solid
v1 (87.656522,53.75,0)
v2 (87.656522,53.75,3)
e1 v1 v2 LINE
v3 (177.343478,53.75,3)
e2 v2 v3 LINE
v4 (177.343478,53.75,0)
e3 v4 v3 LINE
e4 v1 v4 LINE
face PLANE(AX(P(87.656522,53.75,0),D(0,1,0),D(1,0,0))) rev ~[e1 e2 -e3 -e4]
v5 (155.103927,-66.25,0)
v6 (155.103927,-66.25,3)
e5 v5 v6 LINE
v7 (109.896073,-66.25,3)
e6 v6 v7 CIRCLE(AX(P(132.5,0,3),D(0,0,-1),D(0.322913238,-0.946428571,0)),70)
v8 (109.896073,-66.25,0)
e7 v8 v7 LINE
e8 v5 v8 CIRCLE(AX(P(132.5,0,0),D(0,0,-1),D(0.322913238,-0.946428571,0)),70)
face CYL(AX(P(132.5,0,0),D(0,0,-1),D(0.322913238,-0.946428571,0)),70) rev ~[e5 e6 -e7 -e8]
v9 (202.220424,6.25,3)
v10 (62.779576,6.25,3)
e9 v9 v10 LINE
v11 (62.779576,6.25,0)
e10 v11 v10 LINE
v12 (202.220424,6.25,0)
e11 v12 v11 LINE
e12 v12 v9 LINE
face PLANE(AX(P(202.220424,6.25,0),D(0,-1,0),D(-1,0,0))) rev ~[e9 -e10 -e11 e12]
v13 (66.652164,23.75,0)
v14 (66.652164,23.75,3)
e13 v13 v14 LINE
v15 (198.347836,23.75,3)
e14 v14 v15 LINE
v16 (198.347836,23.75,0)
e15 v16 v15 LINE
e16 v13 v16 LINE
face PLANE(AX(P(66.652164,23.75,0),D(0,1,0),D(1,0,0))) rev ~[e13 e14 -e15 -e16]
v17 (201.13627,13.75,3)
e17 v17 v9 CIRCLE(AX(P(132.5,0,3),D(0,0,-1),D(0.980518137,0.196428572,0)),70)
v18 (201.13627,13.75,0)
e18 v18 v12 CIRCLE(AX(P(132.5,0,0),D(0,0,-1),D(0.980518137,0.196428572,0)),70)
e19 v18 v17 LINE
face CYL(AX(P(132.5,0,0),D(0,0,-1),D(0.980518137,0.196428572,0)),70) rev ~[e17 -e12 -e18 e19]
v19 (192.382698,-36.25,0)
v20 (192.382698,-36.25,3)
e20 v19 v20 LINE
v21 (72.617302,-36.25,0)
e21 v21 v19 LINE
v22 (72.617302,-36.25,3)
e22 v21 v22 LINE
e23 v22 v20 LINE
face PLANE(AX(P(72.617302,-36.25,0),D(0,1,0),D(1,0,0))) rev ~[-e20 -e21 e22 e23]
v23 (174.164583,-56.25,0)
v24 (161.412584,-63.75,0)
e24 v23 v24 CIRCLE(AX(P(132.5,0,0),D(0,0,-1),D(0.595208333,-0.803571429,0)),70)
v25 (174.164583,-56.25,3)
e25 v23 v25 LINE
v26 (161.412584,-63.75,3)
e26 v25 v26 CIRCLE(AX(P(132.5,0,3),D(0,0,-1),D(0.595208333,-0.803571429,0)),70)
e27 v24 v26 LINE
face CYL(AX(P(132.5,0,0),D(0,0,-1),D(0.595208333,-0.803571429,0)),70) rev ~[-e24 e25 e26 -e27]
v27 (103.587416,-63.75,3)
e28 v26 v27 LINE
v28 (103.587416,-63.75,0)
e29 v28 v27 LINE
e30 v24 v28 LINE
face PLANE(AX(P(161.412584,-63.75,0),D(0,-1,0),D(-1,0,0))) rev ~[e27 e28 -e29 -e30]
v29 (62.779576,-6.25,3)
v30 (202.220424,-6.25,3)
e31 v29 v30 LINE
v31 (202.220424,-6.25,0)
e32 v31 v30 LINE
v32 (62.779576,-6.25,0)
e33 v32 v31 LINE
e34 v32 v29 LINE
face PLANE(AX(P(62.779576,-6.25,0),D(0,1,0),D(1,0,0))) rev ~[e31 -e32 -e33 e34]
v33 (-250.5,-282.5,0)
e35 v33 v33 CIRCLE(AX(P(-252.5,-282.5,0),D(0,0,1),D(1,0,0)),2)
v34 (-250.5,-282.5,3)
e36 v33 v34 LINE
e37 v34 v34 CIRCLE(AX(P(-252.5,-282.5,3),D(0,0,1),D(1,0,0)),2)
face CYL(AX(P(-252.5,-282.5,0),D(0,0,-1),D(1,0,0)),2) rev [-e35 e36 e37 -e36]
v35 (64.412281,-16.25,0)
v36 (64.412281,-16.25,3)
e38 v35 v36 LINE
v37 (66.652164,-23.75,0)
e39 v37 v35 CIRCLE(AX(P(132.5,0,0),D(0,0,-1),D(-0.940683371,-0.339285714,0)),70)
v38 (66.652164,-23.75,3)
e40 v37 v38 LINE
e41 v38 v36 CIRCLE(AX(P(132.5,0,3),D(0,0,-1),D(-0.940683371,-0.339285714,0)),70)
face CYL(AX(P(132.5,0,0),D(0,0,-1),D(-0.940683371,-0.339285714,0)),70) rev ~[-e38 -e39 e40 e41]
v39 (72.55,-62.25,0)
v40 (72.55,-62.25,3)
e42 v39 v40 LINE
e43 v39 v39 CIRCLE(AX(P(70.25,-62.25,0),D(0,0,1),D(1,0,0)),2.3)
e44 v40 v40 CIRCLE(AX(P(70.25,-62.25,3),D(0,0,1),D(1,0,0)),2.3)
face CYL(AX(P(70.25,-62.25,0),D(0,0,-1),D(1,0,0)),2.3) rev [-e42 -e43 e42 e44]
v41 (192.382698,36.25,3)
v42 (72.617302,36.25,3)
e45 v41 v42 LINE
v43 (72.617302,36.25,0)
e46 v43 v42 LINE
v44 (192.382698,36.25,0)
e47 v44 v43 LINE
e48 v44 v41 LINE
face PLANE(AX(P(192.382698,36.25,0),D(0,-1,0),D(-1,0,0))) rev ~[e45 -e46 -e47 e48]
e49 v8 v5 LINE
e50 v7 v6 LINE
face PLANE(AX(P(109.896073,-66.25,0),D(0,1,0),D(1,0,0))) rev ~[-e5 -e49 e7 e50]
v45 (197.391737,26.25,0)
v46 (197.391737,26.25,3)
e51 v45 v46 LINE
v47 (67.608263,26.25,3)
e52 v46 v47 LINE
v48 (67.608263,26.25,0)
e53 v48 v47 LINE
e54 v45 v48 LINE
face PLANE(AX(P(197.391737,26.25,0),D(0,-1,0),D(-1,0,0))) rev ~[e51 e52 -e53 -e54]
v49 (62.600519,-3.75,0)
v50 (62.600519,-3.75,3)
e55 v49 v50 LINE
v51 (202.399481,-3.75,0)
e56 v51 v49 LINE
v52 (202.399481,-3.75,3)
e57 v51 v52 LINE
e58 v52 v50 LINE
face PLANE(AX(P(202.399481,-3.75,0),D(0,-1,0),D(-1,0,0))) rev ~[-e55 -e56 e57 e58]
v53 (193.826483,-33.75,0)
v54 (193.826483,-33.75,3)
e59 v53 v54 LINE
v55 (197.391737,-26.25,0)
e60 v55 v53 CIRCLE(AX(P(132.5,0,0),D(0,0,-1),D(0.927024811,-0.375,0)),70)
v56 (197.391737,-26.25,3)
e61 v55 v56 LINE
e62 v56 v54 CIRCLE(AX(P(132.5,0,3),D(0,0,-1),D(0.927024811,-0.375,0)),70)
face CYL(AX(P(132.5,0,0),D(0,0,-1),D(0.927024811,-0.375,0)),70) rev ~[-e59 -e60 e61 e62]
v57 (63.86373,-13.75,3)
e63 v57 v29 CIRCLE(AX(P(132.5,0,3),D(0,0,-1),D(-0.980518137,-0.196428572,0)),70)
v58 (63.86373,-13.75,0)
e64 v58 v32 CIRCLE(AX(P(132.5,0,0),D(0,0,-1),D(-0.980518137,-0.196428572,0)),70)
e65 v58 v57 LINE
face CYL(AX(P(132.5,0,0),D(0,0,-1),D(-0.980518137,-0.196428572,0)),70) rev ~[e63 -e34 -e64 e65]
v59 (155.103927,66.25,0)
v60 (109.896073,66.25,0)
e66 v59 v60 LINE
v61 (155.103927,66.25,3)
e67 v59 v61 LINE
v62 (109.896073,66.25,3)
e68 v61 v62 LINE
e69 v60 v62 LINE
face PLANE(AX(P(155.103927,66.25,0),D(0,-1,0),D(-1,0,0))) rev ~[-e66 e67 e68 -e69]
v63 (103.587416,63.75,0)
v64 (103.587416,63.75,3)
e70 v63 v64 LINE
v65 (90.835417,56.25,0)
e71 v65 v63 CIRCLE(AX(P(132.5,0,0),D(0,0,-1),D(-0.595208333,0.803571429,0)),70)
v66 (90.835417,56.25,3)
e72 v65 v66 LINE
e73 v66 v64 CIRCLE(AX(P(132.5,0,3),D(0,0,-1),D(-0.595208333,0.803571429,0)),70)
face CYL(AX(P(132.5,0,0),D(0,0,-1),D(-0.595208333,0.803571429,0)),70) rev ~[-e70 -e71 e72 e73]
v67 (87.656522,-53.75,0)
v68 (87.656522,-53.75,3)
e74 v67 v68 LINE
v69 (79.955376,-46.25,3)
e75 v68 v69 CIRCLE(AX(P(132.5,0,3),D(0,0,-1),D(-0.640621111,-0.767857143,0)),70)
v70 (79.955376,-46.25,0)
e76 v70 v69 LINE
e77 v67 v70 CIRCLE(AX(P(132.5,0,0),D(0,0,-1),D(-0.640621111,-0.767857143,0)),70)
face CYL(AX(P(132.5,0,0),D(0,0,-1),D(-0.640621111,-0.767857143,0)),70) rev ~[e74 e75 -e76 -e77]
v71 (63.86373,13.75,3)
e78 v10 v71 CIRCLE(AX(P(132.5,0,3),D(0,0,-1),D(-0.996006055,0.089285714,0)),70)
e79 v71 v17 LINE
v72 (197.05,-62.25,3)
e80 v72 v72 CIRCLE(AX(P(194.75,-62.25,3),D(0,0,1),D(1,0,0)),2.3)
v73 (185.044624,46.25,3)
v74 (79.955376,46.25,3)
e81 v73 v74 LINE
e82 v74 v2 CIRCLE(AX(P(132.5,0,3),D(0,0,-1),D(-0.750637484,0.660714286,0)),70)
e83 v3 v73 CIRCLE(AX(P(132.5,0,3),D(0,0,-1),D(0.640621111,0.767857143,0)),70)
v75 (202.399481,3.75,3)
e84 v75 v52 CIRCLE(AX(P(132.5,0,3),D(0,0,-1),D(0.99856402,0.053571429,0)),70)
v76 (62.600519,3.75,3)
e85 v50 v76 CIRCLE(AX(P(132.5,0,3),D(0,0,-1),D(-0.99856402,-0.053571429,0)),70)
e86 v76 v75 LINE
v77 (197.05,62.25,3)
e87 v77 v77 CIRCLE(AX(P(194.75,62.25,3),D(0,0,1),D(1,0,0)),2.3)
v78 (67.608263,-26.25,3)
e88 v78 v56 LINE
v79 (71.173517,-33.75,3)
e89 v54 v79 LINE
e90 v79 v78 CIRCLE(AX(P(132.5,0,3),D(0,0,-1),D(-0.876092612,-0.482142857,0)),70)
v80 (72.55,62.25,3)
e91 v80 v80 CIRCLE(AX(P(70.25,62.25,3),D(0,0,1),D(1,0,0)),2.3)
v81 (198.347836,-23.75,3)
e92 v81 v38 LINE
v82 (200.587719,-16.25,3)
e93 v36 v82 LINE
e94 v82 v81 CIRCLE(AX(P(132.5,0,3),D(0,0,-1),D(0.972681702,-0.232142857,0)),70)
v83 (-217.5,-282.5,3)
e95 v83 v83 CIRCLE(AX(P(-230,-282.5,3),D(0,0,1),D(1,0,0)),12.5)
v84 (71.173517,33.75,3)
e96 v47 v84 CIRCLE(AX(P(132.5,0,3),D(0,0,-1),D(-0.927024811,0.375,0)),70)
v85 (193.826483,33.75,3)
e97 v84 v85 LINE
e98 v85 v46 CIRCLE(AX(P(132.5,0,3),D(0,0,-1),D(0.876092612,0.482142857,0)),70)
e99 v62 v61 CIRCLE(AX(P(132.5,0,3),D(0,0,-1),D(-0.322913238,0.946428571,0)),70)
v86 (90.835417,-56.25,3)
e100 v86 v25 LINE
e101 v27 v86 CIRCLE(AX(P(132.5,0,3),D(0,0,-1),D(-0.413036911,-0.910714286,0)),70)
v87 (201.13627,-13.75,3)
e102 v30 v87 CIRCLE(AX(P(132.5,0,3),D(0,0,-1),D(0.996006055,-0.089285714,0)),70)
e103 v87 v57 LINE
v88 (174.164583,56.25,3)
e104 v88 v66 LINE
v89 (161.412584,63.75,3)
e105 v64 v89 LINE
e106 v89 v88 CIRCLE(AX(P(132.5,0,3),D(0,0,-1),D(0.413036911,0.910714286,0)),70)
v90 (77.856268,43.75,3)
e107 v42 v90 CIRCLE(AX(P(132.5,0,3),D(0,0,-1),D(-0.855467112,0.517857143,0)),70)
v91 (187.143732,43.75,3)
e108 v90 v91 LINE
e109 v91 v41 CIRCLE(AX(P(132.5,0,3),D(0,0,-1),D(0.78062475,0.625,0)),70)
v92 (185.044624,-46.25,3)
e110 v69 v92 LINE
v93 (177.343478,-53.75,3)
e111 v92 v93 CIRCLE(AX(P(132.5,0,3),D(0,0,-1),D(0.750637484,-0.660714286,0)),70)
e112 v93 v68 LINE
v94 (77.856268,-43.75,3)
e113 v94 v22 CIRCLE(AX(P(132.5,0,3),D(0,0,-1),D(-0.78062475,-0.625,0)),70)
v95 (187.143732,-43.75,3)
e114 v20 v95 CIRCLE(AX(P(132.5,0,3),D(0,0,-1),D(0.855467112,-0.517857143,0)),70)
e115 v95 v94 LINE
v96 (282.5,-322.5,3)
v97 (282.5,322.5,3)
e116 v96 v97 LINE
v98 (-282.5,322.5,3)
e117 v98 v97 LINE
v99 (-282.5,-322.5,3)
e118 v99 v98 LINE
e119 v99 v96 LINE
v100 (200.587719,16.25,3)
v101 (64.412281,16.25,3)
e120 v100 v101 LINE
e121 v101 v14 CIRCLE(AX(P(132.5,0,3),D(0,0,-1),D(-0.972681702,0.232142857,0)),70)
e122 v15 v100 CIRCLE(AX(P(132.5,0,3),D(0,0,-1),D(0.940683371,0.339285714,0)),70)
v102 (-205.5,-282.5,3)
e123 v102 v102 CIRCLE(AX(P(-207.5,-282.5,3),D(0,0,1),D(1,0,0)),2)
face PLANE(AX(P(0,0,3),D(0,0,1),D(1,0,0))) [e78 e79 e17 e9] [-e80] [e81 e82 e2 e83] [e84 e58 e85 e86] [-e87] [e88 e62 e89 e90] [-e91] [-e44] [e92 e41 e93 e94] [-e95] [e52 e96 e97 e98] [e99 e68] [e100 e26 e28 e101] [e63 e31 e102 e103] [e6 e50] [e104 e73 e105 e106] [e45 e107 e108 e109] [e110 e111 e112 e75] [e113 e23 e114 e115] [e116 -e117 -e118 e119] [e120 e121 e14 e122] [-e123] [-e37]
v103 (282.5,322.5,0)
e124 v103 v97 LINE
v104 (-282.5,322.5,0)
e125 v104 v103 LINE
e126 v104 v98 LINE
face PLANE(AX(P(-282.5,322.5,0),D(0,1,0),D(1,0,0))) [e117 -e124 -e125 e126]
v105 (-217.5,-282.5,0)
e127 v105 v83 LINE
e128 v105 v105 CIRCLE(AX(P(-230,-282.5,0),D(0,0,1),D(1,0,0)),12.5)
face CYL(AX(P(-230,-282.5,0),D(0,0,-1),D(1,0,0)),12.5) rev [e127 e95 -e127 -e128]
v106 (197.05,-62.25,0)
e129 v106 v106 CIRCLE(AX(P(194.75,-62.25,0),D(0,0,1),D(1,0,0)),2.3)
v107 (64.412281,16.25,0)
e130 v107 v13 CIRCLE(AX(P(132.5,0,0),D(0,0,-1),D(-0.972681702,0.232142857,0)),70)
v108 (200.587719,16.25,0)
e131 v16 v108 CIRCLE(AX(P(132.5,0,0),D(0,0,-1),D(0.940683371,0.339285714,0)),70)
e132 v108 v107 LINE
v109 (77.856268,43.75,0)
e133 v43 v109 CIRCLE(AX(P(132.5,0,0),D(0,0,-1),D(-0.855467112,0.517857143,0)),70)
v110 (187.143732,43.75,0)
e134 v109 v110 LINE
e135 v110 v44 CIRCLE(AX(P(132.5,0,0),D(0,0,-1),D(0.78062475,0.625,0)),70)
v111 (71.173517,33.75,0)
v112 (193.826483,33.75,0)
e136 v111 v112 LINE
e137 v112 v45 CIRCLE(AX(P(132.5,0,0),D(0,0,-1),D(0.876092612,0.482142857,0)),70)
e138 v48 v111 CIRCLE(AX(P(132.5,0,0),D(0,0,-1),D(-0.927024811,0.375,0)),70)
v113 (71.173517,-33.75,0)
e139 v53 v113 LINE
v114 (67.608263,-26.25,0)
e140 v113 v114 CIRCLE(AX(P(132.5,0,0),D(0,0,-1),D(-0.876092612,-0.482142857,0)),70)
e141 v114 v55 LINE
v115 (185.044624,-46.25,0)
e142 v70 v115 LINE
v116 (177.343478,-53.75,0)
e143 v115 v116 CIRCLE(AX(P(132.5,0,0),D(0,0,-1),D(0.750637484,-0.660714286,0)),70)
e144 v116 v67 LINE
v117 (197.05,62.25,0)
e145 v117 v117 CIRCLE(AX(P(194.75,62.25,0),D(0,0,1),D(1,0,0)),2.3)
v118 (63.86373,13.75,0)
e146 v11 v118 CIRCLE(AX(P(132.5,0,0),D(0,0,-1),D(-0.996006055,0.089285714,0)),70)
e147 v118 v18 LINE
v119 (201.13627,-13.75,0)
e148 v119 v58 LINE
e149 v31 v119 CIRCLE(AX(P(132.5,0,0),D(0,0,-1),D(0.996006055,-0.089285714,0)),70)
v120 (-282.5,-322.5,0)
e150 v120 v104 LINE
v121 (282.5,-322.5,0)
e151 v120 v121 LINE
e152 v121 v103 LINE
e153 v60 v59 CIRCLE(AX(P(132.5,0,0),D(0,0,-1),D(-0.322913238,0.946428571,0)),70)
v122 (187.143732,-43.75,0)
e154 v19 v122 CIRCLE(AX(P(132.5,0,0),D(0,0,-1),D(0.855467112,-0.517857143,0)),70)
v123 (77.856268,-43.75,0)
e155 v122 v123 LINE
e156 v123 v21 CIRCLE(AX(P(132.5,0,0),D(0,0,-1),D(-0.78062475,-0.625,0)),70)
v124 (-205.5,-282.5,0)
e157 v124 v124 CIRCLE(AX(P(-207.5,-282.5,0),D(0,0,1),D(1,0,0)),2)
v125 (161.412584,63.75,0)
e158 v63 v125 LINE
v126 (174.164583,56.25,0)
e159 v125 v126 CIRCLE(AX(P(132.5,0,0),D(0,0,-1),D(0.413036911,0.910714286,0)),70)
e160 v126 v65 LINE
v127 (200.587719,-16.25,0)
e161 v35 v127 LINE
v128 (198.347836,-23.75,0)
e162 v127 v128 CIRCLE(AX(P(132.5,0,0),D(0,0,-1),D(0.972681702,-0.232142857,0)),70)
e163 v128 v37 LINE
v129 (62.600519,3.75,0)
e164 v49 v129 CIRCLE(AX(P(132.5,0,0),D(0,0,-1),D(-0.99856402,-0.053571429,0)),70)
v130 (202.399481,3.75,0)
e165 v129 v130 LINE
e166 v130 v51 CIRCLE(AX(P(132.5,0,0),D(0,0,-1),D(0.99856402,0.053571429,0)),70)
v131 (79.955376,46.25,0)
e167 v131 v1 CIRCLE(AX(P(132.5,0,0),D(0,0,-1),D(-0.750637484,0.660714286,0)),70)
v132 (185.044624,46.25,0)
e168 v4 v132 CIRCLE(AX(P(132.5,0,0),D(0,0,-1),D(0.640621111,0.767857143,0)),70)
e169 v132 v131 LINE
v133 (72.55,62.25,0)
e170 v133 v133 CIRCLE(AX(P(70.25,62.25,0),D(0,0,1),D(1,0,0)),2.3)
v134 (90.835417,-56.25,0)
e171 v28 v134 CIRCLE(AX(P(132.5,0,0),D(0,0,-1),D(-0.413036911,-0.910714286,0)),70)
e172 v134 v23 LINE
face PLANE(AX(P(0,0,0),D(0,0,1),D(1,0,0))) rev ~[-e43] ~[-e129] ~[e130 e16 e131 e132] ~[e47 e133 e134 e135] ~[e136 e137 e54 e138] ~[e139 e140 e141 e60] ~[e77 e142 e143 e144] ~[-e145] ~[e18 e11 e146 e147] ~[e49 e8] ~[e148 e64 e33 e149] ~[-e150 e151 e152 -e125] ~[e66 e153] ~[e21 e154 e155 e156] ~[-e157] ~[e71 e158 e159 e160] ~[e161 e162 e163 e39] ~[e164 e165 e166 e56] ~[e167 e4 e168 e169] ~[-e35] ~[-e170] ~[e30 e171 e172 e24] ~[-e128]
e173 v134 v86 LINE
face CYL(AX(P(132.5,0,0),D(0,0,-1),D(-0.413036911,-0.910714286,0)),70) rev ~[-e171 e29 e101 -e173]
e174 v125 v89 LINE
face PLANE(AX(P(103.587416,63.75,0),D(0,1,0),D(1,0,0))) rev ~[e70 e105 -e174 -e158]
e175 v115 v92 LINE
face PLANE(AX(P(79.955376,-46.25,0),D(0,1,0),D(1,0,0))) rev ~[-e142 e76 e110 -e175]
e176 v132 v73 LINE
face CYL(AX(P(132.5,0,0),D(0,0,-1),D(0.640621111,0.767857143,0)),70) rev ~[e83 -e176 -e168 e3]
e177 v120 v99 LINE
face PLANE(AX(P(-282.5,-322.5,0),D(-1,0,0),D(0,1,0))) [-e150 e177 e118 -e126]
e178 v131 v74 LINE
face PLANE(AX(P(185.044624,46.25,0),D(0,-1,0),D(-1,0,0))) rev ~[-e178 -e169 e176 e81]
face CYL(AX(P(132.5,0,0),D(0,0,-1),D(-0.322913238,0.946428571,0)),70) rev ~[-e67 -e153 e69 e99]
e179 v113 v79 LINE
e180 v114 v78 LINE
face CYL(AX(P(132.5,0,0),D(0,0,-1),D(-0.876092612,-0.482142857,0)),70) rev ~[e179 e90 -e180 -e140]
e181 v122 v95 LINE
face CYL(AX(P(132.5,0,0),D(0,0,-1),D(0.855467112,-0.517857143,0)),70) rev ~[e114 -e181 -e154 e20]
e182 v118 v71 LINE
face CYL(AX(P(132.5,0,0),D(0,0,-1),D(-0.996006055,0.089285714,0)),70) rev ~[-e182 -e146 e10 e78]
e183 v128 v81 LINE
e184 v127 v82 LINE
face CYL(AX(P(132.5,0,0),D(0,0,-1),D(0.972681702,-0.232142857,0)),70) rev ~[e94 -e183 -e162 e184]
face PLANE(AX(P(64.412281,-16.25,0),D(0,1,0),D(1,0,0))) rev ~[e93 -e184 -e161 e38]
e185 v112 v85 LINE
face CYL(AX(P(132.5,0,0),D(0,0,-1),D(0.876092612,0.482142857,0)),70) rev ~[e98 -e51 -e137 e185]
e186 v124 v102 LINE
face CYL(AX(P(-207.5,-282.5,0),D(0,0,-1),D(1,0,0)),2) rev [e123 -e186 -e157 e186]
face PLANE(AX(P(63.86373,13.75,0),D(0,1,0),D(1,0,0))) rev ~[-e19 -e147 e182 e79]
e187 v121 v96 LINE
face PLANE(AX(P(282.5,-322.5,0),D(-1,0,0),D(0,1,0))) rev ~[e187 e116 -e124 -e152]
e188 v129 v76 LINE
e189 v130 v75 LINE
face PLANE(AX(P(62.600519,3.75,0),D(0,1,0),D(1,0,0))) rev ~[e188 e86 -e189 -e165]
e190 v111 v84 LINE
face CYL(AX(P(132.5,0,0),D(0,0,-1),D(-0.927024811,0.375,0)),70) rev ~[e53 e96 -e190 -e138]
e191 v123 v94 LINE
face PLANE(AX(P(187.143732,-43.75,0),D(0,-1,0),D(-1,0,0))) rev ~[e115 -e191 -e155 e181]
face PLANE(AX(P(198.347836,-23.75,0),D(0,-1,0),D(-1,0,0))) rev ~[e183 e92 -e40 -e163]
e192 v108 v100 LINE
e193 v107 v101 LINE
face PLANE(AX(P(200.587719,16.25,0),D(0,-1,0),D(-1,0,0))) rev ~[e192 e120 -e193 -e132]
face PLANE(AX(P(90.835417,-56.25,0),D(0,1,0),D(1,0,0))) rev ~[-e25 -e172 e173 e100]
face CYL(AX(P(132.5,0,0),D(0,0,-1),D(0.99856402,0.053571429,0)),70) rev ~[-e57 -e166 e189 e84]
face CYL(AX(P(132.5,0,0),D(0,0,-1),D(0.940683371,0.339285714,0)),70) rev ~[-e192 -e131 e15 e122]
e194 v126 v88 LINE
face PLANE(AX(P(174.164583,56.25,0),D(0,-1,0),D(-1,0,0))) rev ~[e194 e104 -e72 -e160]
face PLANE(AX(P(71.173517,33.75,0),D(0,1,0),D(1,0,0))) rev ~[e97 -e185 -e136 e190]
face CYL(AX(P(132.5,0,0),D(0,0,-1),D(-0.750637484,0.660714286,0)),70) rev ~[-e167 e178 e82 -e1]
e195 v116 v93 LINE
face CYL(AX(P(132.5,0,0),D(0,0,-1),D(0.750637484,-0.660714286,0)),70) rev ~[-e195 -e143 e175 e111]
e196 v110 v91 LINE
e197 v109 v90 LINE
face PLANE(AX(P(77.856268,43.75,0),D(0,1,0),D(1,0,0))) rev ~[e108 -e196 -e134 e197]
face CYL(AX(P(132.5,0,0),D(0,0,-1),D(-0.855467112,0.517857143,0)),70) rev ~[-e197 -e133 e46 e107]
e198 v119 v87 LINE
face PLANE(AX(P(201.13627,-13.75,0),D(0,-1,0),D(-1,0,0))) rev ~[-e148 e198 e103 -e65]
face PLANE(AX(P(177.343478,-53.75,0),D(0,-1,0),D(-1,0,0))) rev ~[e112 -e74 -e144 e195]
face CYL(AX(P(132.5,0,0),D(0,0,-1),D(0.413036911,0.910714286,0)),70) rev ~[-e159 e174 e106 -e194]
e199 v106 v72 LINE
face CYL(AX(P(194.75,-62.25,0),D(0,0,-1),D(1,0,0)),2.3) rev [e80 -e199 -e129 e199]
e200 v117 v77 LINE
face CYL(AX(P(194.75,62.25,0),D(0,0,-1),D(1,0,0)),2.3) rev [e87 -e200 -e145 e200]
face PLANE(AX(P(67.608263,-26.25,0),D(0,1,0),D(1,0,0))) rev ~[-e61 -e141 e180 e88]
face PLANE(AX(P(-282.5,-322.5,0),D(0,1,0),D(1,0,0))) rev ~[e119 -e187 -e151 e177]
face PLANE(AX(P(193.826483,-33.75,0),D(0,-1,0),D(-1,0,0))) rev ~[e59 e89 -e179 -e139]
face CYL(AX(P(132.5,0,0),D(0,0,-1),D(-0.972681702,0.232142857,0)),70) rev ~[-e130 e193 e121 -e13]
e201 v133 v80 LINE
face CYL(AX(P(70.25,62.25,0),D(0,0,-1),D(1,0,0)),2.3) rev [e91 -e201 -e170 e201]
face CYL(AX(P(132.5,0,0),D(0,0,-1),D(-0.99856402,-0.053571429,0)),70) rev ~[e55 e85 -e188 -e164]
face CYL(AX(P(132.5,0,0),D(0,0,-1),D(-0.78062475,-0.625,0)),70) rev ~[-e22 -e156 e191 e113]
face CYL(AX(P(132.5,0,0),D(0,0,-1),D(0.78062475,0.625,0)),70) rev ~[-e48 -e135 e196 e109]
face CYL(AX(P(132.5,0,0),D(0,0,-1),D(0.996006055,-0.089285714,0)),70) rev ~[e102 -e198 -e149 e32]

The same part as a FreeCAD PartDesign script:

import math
import FreeCAD as App
import Part
import Sketcher
from FreeCAD import Vector
Q = App.Units.Quantity


def add_polygon(sketch, points):
    """Adds a closed chain of lines whose ends are joined by coincident constraints."""
    first, n = sketch.GeometryCount, len(points)
    for a, b in zip(points, points[1:] + points[:1]):
        sketch.addGeometry(Part.LineSegment(App.Vector(*a, 0), App.Vector(*b, 0)), False)
    for i in range(n):
        sketch.addConstraint(Sketcher.Constraint("Coincident", first + i, 2, first + (i + 1) % n, 1))

doc = App.newDocument("Part")
body = doc.addObject("PartDesign::Body", "Body")

sketch1 = body.newObject("Sketcher::SketchObject", "Sketch")
sketch1.AttachmentSupport = (doc.getObject("XY_Plane"), [""])
sketch1.MapMode = "FlatFace"
add_polygon(sketch1, [(-282.5, 322.5), (-282.5, -322.5), (282.5, -322.5), (282.5, 322.5)])
sketch1.addGeometry(Part.Circle(Vector(-252.5, -282.5, 0), Vector(0, 0, 1), 2), False)
sketch1.addGeometry(Part.Circle(Vector(-230, -282.5, 0), Vector(0, 0, 1), 12.5), False)
sketch1.addGeometry(Part.Circle(Vector(-207.5, -282.5, 0), Vector(0, 0, 1), 2), False)
sketch1.addGeometry(Part.Circle(Vector(70.2, -62.2, 0), Vector(0, 0, 1), 2.3), False)
sketch1.addGeometry(Part.LineSegment(Vector(109.9, -66.2, 0), Vector(155.1, -66.2, 0)), False)
sketch1.addGeometry(Part.ArcOfCircle(Part.Circle(Vector(132.5, 0, 0), Vector(0, 0, 1), 70), math.radians(-109), math.radians(-71)), False)
sketch1.addGeometry(Part.ArcOfCircle(Part.Circle(Vector(132.5, 0, 0), Vector(0, 0, 1), 70), math.radians(-126.53), math.radians(-114.4)), False)
sketch1.addGeometry(Part.LineSegment(Vector(90.8, -56.2, 0), Vector(174.2, -56.2, 0)), False)
sketch1.addGeometry(Part.ArcOfCircle(Part.Circle(Vector(132.5, 0, 0), Vector(0, 0, 1), 70), math.radians(-65.6), math.radians(-53.47)), False)
sketch1.addGeometry(Part.LineSegment(Vector(161.4, -63.8, 0), Vector(103.6, -63.8, 0)), False)
sketch1.addGeometry(Part.ArcOfCircle(Part.Circle(Vector(132.5, 0, 0), Vector(0, 0, 1), 70), math.radians(-50.16), math.radians(-41.35)), False)
sketch1.addGeometry(Part.LineSegment(Vector(177.3, -53.8, 0), Vector(87.7, -53.8, 0)), False)
sketch1.addGeometry(Part.ArcOfCircle(Part.Circle(Vector(132.5, 0, 0), Vector(0, 0, 1), 70), math.radians(-138.65), math.radians(-129.84)), False)
sketch1.addGeometry(Part.LineSegment(Vector(80, -46.2, 0), Vector(185, -46.2, 0)), False)
sketch1.addGeometry(Part.LineSegment(Vector(72.6, -36.2, 0), Vector(192.4, -36.2, 0)), False)
sketch1.addGeometry(Part.ArcOfCircle(Part.Circle(Vector(132.5, 0, 0), Vector(0, 0, 1), 70), math.radians(-38.68), math.radians(-31.19)), False)
sketch1.addGeometry(Part.LineSegment(Vector(187.1, -43.8, 0), Vector(77.9, -43.8, 0)), False)
sketch1.addGeometry(Part.ArcOfCircle(Part.Circle(Vector(132.5, 0, 0), Vector(0, 0, 1), 70), math.radians(-148.81), math.radians(-141.32)), False)
sketch1.addGeometry(Part.LineSegment(Vector(67.6, -26.2, 0), Vector(197.4, -26.2, 0)), False)
sketch1.addGeometry(Part.ArcOfCircle(Part.Circle(Vector(132.5, 0, 0), Vector(0, 0, 1), 70), math.radians(-28.83), math.radians(-22.02)), False)
sketch1.addGeometry(Part.LineSegment(Vector(193.8, -33.8, 0), Vector(71.2, -33.8, 0)), False)
sketch1.addGeometry(Part.ArcOfCircle(Part.Circle(Vector(132.5, 0, 0), Vector(0, 0, 1), 70), math.radians(-157.98), math.radians(-151.17)), False)
sketch1.addGeometry(Part.Circle(Vector(194.8, -62.2, 0), Vector(0, 0, 1), 2.3), False)
sketch1.addGeometry(Part.Circle(Vector(70.2, 62.2, 0), Vector(0, 0, 1), 2.3), False)
sketch1.addGeometry(Part.LineSegment(Vector(64.4, -16.2, 0), Vector(200.6, -16.2, 0)), False)
sketch1.addGeometry(Part.ArcOfCircle(Part.Circle(Vector(132.5, 0, 0), Vector(0, 0, 1), 70), math.radians(-19.83), math.radians(-13.42)), False)
sketch1.addGeometry(Part.LineSegment(Vector(198.3, -23.8, 0), Vector(66.7, -23.8, 0)), False)
sketch1.addGeometry(Part.ArcOfCircle(Part.Circle(Vector(132.5, 0, 0), Vector(0, 0, 1), 70), math.radians(-166.58), math.radians(-160.17)), False)
sketch1.addGeometry(Part.LineSegment(Vector(62.8, -6.2, 0), Vector(202.2, -6.2, 0)), False)
sketch1.addGeometry(Part.ArcOfCircle(Part.Circle(Vector(132.5, 0, 0), Vector(0, 0, 1), 70), math.radians(-11.33), math.radians(-5.12)), False)
sketch1.addGeometry(Part.LineSegment(Vector(201.1, -13.8, 0), Vector(63.9, -13.8, 0)), False)
sketch1.addGeometry(Part.ArcOfCircle(Part.Circle(Vector(132.5, 0, 0), Vector(0, 0, 1), 70), math.radians(-174.88), math.radians(-168.67)), False)
sketch1.addGeometry(Part.ArcOfCircle(Part.Circle(Vector(132.5, 0, 0), Vector(0, 0, 1), 70), math.radians(-3.07), math.radians(3.07)), False)
sketch1.addGeometry(Part.LineSegment(Vector(202.4, -3.8, 0), Vector(62.6, -3.8, 0)), False)
sketch1.addGeometry(Part.ArcOfCircle(Part.Circle(Vector(132.5, 0, 0), Vector(0, 0, 1), 70), math.radians(176.93), math.radians(183.07)), False)
sketch1.addGeometry(Part.LineSegment(Vector(62.6, 3.8, 0), Vector(202.4, 3.8, 0)), False)
sketch1.addGeometry(Part.LineSegment(Vector(63.9, 13.8, 0), Vector(201.1, 13.8, 0)), False)
sketch1.addGeometry(Part.ArcOfCircle(Part.Circle(Vector(132.5, 0, 0), Vector(0, 0, 1), 70), math.radians(5.12), math.radians(11.33)), False)
sketch1.addGeometry(Part.LineSegment(Vector(202.2, 6.2, 0), Vector(62.8, 6.2, 0)), False)
sketch1.addGeometry(Part.ArcOfCircle(Part.Circle(Vector(132.5, 0, 0), Vector(0, 0, 1), 70), math.radians(168.67), math.radians(174.88)), False)
sketch1.addGeometry(Part.LineSegment(Vector(66.7, 23.8, 0), Vector(198.3, 23.8, 0)), False)
sketch1.addGeometry(Part.ArcOfCircle(Part.Circle(Vector(132.5, 0, 0), Vector(0, 0, 1), 70), math.radians(13.42), math.radians(19.83)), False)
sketch1.addGeometry(Part.LineSegment(Vector(200.6, 16.2, 0), Vector(64.4, 16.2, 0)), False)
sketch1.addGeometry(Part.ArcOfCircle(Part.Circle(Vector(132.5, 0, 0), Vector(0, 0, 1), 70), math.radians(160.17), math.radians(166.58)), False)
sketch1.addGeometry(Part.LineSegment(Vector(71.2, 33.8, 0), Vector(193.8, 33.8, 0)), False)
sketch1.addGeometry(Part.ArcOfCircle(Part.Circle(Vector(132.5, 0, 0), Vector(0, 0, 1), 70), math.radians(22.02), math.radians(28.83)), False)
sketch1.addGeometry(Part.LineSegment(Vector(197.4, 26.2, 0), Vector(67.6, 26.2, 0)), False)
sketch1.addGeometry(Part.ArcOfCircle(Part.Circle(Vector(132.5, 0, 0), Vector(0, 0, 1), 70), math.radians(151.17), math.radians(157.98)), False)
sketch1.addGeometry(Part.LineSegment(Vector(77.9, 43.8, 0), Vector(187.1, 43.8, 0)), False)
sketch1.addGeometry(Part.ArcOfCircle(Part.Circle(Vector(132.5, 0, 0), Vector(0, 0, 1), 70), math.radians(31.19), math.radians(38.68)), False)
sketch1.addGeometry(Part.LineSegment(Vector(192.4, 36.2, 0), Vector(72.6, 36.2, 0)), False)
sketch1.addGeometry(Part.ArcOfCircle(Part.Circle(Vector(132.5, 0, 0), Vector(0, 0, 1), 70), math.radians(141.32), math.radians(148.81)), False)
sketch1.addGeometry(Part.LineSegment(Vector(87.7, 53.8, 0), Vector(177.3, 53.8, 0)), False)
sketch1.addGeometry(Part.ArcOfCircle(Part.Circle(Vector(132.5, 0, 0), Vector(0, 0, 1), 70), math.radians(41.35), math.radians(50.16)), False)
sketch1.addGeometry(Part.LineSegment(Vector(185, 46.2, 0), Vector(80, 46.2, 0)), False)
sketch1.addGeometry(Part.ArcOfCircle(Part.Circle(Vector(132.5, 0, 0), Vector(0, 0, 1), 70), math.radians(129.84), math.radians(138.65)), False)
sketch1.addGeometry(Part.LineSegment(Vector(103.6, 63.8, 0), Vector(161.4, 63.8, 0)), False)
sketch1.addGeometry(Part.ArcOfCircle(Part.Circle(Vector(132.5, 0, 0), Vector(0, 0, 1), 70), math.radians(53.47), math.radians(65.6)), False)
sketch1.addGeometry(Part.LineSegment(Vector(174.2, 56.2, 0), Vector(90.8, 56.2, 0)), False)
sketch1.addGeometry(Part.ArcOfCircle(Part.Circle(Vector(132.5, 0, 0), Vector(0, 0, 1), 70), math.radians(114.4), math.radians(126.53)), False)
sketch1.addGeometry(Part.LineSegment(Vector(155.1, 66.2, 0), Vector(109.9, 66.2, 0)), False)
sketch1.addGeometry(Part.ArcOfCircle(Part.Circle(Vector(132.5, 0, 0), Vector(0, 0, 1), 70), math.radians(71), math.radians(109)), False)
sketch1.addGeometry(Part.Circle(Vector(194.8, 62.2, 0), Vector(0, 0, 1), 2.3), False)
sketch1.addConstraint(Sketcher.Constraint("Coincident", 8, 1, 9, 1))
sketch1.addConstraint(Sketcher.Constraint("Coincident", 9, 2, 8, 2))
sketch1.addConstraint(Sketcher.Constraint("Coincident", 10, 1, 11, 1))
sketch1.addConstraint(Sketcher.Constraint("Coincident", 11, 2, 12, 2))
sketch1.addConstraint(Sketcher.Constraint("Coincident", 12, 1, 13, 1))
sketch1.addConstraint(Sketcher.Constraint("Coincident", 13, 2, 10, 2))
sketch1.addConstraint(Sketcher.Constraint("Coincident", 14, 1, 15, 1))
sketch1.addConstraint(Sketcher.Constraint("Coincident", 15, 2, 16, 2))
sketch1.addConstraint(Sketcher.Constraint("Coincident", 16, 1, 17, 1))
sketch1.addConstraint(Sketcher.Constraint("Coincident", 17, 2, 14, 2))
sketch1.addConstraint(Sketcher.Constraint("Coincident", 18, 2, 19, 2))
sketch1.addConstraint(Sketcher.Constraint("Coincident", 19, 1, 20, 1))
sketch1.addConstraint(Sketcher.Constraint("Coincident", 20, 2, 21, 2))
sketch1.addConstraint(Sketcher.Constraint("Coincident", 21, 1, 18, 1))
sketch1.addConstraint(Sketcher.Constraint("Coincident", 22, 2, 23, 2))
sketch1.addConstraint(Sketcher.Constraint("Coincident", 23, 1, 24, 1))
sketch1.addConstraint(Sketcher.Constraint("Coincident", 24, 2, 25, 2))
sketch1.addConstraint(Sketcher.Constraint("Coincident", 25, 1, 22, 1))
sketch1.addConstraint(Sketcher.Constraint("Coincident", 28, 2, 29, 2))
sketch1.addConstraint(Sketcher.Constraint("Coincident", 29, 1, 30, 1))
sketch1.addConstraint(Sketcher.Constraint("Coincident", 30, 2, 31, 2))
sketch1.addConstraint(Sketcher.Constraint("Coincident", 31, 1, 28, 1))
sketch1.addConstraint(Sketcher.Constraint("Coincident", 32, 2, 33, 2))
sketch1.addConstraint(Sketcher.Constraint("Coincident", 33, 1, 34, 1))
sketch1.addConstraint(Sketcher.Constraint("Coincident", 34, 2, 35, 2))
sketch1.addConstraint(Sketcher.Constraint("Coincident", 35, 1, 32, 1))
sketch1.addConstraint(Sketcher.Constraint("Coincident", 36, 1, 37, 1))
sketch1.addConstraint(Sketcher.Constraint("Coincident", 37, 2, 38, 2))
sketch1.addConstraint(Sketcher.Constraint("Coincident", 38, 1, 39, 1))
sketch1.addConstraint(Sketcher.Constraint("Coincident", 39, 2, 36, 2))
sketch1.addConstraint(Sketcher.Constraint("Coincident", 40, 2, 41, 2))
sketch1.addConstraint(Sketcher.Constraint("Coincident", 41, 1, 42, 1))
sketch1.addConstraint(Sketcher.Constraint("Coincident", 42, 2, 43, 2))
sketch1.addConstraint(Sketcher.Constraint("Coincident", 43, 1, 40, 1))
sketch1.addConstraint(Sketcher.Constraint("Coincident", 44, 2, 45, 2))
sketch1.addConstraint(Sketcher.Constraint("Coincident", 45, 1, 46, 1))
sketch1.addConstraint(Sketcher.Constraint("Coincident", 46, 2, 47, 2))
sketch1.addConstraint(Sketcher.Constraint("Coincident", 47, 1, 44, 1))
sketch1.addConstraint(Sketcher.Constraint("Coincident", 48, 2, 49, 2))
sketch1.addConstraint(Sketcher.Constraint("Coincident", 49, 1, 50, 1))
sketch1.addConstraint(Sketcher.Constraint("Coincident", 50, 2, 51, 2))
sketch1.addConstraint(Sketcher.Constraint("Coincident", 51, 1, 48, 1))
sketch1.addConstraint(Sketcher.Constraint("Coincident", 52, 2, 53, 2))
sketch1.addConstraint(Sketcher.Constraint("Coincident", 53, 1, 54, 1))
sketch1.addConstraint(Sketcher.Constraint("Coincident", 54, 2, 55, 2))
sketch1.addConstraint(Sketcher.Constraint("Coincident", 55, 1, 52, 1))
sketch1.addConstraint(Sketcher.Constraint("Coincident", 56, 2, 57, 2))
sketch1.addConstraint(Sketcher.Constraint("Coincident", 57, 1, 58, 1))
sketch1.addConstraint(Sketcher.Constraint("Coincident", 58, 2, 59, 2))
sketch1.addConstraint(Sketcher.Constraint("Coincident", 59, 1, 56, 1))
sketch1.addConstraint(Sketcher.Constraint("Coincident", 60, 2, 61, 2))
sketch1.addConstraint(Sketcher.Constraint("Coincident", 61, 1, 62, 1))
sketch1.addConstraint(Sketcher.Constraint("Coincident", 62, 2, 63, 2))
sketch1.addConstraint(Sketcher.Constraint("Coincident", 63, 1, 60, 1))
sketch1.addConstraint(Sketcher.Constraint("Coincident", 64, 1, 65, 1))
sketch1.addConstraint(Sketcher.Constraint("Coincident", 65, 2, 64, 2))
sketch1.addConstraint(Sketcher.Constraint("Vertical", 0))
sketch1.addConstraint(Sketcher.Constraint("Horizontal", 1))
sketch1.addConstraint(Sketcher.Constraint("Vertical", 2))
sketch1.addConstraint(Sketcher.Constraint("Horizontal", 3))
sketch1.addConstraint(Sketcher.Constraint("Horizontal", 8))
sketch1.addConstraint(Sketcher.Constraint("Horizontal", 11))
sketch1.addConstraint(Sketcher.Constraint("Horizontal", 13))
sketch1.addConstraint(Sketcher.Constraint("Horizontal", 15))
sketch1.addConstraint(Sketcher.Constraint("Horizontal", 17))
sketch1.addConstraint(Sketcher.Constraint("Horizontal", 18))
sketch1.addConstraint(Sketcher.Constraint("Horizontal", 20))
sketch1.addConstraint(Sketcher.Constraint("Horizontal", 22))
sketch1.addConstraint(Sketcher.Constraint("Horizontal", 24))
sketch1.addConstraint(Sketcher.Constraint("Horizontal", 28))
sketch1.addConstraint(Sketcher.Constraint("Horizontal", 30))
sketch1.addConstraint(Sketcher.Constraint("Horizontal", 32))
sketch1.addConstraint(Sketcher.Constraint("Horizontal", 34))
sketch1.addConstraint(Sketcher.Constraint("Horizontal", 37))
sketch1.addConstraint(Sketcher.Constraint("Horizontal", 39))
sketch1.addConstraint(Sketcher.Constraint("Horizontal", 40))
sketch1.addConstraint(Sketcher.Constraint("Horizontal", 42))
sketch1.addConstraint(Sketcher.Constraint("Horizontal", 44))
sketch1.addConstraint(Sketcher.Constraint("Horizontal", 46))
sketch1.addConstraint(Sketcher.Constraint("Horizontal", 48))
sketch1.addConstraint(Sketcher.Constraint("Horizontal", 50))
sketch1.addConstraint(Sketcher.Constraint("Horizontal", 52))
sketch1.addConstraint(Sketcher.Constraint("Horizontal", 54))
sketch1.addConstraint(Sketcher.Constraint("Horizontal", 56))
sketch1.addConstraint(Sketcher.Constraint("Horizontal", 58))
sketch1.addConstraint(Sketcher.Constraint("Horizontal", 60))
sketch1.addConstraint(Sketcher.Constraint("Horizontal", 62))
sketch1.addConstraint(Sketcher.Constraint("Horizontal", 64))
sketch1.addConstraint(Sketcher.Constraint("Coincident", 10, 3, 9, 3))
sketch1.addConstraint(Sketcher.Constraint("Coincident", 12, 3, 9, 3))
sketch1.addConstraint(Sketcher.Constraint("Coincident", 14, 3, 9, 3))
sketch1.addConstraint(Sketcher.Constraint("Coincident", 16, 3, 9, 3))
sketch1.addConstraint(Sketcher.Constraint("Coincident", 19, 3, 9, 3))
sketch1.addConstraint(Sketcher.Constraint("Coincident", 21, 3, 9, 3))
sketch1.addConstraint(Sketcher.Constraint("Coincident", 23, 3, 9, 3))
sketch1.addConstraint(Sketcher.Constraint("Coincident", 25, 3, 9, 3))
sketch1.addConstraint(Sketcher.Constraint("Coincident", 29, 3, 9, 3))
sketch1.addConstraint(Sketcher.Constraint("Coincident", 31, 3, 9, 3))
sketch1.addConstraint(Sketcher.Constraint("Coincident", 33, 3, 9, 3))
sketch1.addConstraint(Sketcher.Constraint("Coincident", 35, 3, 9, 3))
sketch1.addConstraint(Sketcher.Constraint("Coincident", 36, 3, 9, 3))
sketch1.addConstraint(Sketcher.Constraint("Coincident", 38, 3, 9, 3))
sketch1.addConstraint(Sketcher.Constraint("Coincident", 41, 3, 9, 3))
sketch1.addConstraint(Sketcher.Constraint("Coincident", 43, 3, 9, 3))
sketch1.addConstraint(Sketcher.Constraint("Coincident", 45, 3, 9, 3))
sketch1.addConstraint(Sketcher.Constraint("Coincident", 47, 3, 9, 3))
sketch1.addConstraint(Sketcher.Constraint("Coincident", 49, 3, 9, 3))
sketch1.addConstraint(Sketcher.Constraint("Coincident", 51, 3, 9, 3))
sketch1.addConstraint(Sketcher.Constraint("Coincident", 53, 3, 9, 3))
sketch1.addConstraint(Sketcher.Constraint("Coincident", 55, 3, 9, 3))
sketch1.addConstraint(Sketcher.Constraint("Coincident", 57, 3, 9, 3))
sketch1.addConstraint(Sketcher.Constraint("Coincident", 59, 3, 9, 3))
sketch1.addConstraint(Sketcher.Constraint("Coincident", 61, 3, 9, 3))
sketch1.addConstraint(Sketcher.Constraint("Coincident", 63, 3, 9, 3))
sketch1.addConstraint(Sketcher.Constraint("Coincident", 65, 3, 9, 3))
sketch1.addConstraint(Sketcher.Constraint("Equal", 4, 6))
sketch1.addConstraint(Sketcher.Constraint("Equal", 9, 10))
sketch1.addConstraint(Sketcher.Constraint("Equal", 10, 12))
sketch1.addConstraint(Sketcher.Constraint("Equal", 12, 14))
sketch1.addConstraint(Sketcher.Constraint("Equal", 14, 16))
sketch1.addConstraint(Sketcher.Constraint("Equal", 16, 19))
sketch1.addConstraint(Sketcher.Constraint("Equal", 19, 21))
sketch1.addConstraint(Sketcher.Constraint("Equal", 21, 23))
sketch1.addConstraint(Sketcher.Constraint("Equal", 23, 25))
sketch1.addConstraint(Sketcher.Constraint("Equal", 7, 26))
sketch1.addConstraint(Sketcher.Constraint("Equal", 26, 27))
sketch1.addConstraint(Sketcher.Constraint("Equal", 25, 29))
sketch1.addConstraint(Sketcher.Constraint("Equal", 29, 31))
sketch1.addConstraint(Sketcher.Constraint("Equal", 31, 33))
sketch1.addConstraint(Sketcher.Constraint("Equal", 33, 35))
sketch1.addConstraint(Sketcher.Constraint("Equal", 35, 36))
sketch1.addConstraint(Sketcher.Constraint("Equal", 36, 38))
sketch1.addConstraint(Sketcher.Constraint("Equal", 38, 41))
sketch1.addConstraint(Sketcher.Constraint("Equal", 41, 43))
sketch1.addConstraint(Sketcher.Constraint("Equal", 43, 45))
sketch1.addConstraint(Sketcher.Constraint("Equal", 45, 47))
sketch1.addConstraint(Sketcher.Constraint("Equal", 47, 49))
sketch1.addConstraint(Sketcher.Constraint("Equal", 49, 51))
sketch1.addConstraint(Sketcher.Constraint("Equal", 51, 53))
sketch1.addConstraint(Sketcher.Constraint("Equal", 53, 55))
sketch1.addConstraint(Sketcher.Constraint("Equal", 55, 57))
sketch1.addConstraint(Sketcher.Constraint("Equal", 57, 59))
sketch1.addConstraint(Sketcher.Constraint("Equal", 59, 61))
sketch1.addConstraint(Sketcher.Constraint("Equal", 61, 63))
sketch1.addConstraint(Sketcher.Constraint("Equal", 63, 65))
sketch1.addConstraint(Sketcher.Constraint("Equal", 27, 66))
sketch1.addConstraint(Sketcher.Constraint("Symmetric", 0, 2, 2, 2, -1, 1))
sketch1.addConstraint(Sketcher.Constraint("Symmetric", 7, 3, 27, 3, -1))
sketch1.addConstraint(Sketcher.Constraint("Symmetric", 26, 3, 66, 3, -1))
sketch1.addConstraint(Sketcher.Constraint("Symmetric", 37, 2, 38, 1, -1))
sketch1.addConstraint(Sketcher.Constraint("Horizontal", 4, 3, 5, 3))
sketch1.addConstraint(Sketcher.Constraint("Horizontal", 5, 3, 6, 3))
sketch1.addConstraint(Sketcher.Constraint("Horizontal", 7, 3, 26, 3))
sketch1.addConstraint(Sketcher.Constraint("Vertical", 33, 1, 40, 2))
sketch1.addConstraint(Sketcher.Constraint("Vertical", 32, 2, 41, 1))
sketch1.addConstraint(Sketcher.Constraint("Vertical", 29, 1, 44, 2))
sketch1.addConstraint(Sketcher.Constraint("Vertical", 28, 2, 45, 1))
sketch1.addConstraint(Sketcher.Constraint("Vertical", 23, 1, 48, 2))
sketch1.addConstraint(Sketcher.Constraint("Vertical", 22, 2, 49, 1))
sketch1.addConstraint(Sketcher.Constraint("Vertical", 19, 1, 52, 2))
sketch1.addConstraint(Sketcher.Constraint("Vertical", 18, 2, 53, 1))
sketch1.addConstraint(Sketcher.Constraint("Vertical", 14, 1, 56, 2))
sketch1.addConstraint(Sketcher.Constraint("Vertical", 17, 2, 57, 1))
sketch1.addConstraint(Sketcher.Constraint("Vertical", 12, 1, 60, 2))
sketch1.addConstraint(Sketcher.Constraint("Vertical", 11, 2, 61, 1))
sketch1.addConstraint(Sketcher.Constraint("Vertical", 9, 2, 64, 1))
sketch1.addConstraint(Sketcher.Constraint("Diameter", 4, Q("4 mm")))
sketch1.addConstraint(Sketcher.Constraint("Diameter", 5, Q("25 mm")))
sketch1.addConstraint(Sketcher.Constraint("Radius", 9, Q("70 mm")))
sketch1.addConstraint(Sketcher.Constraint("Diameter", 7, Q("4.6 mm")))
sketch1.addConstraint(Sketcher.Constraint("DistanceX", 1, 1, 1, 2, Q("565 mm")))
sketch1.addConstraint(Sketcher.Constraint("DistanceY", 0, 2, 0, 1, Q("645 mm")))
sketch1.addConstraint(Sketcher.Constraint("DistanceX", 5, 3, -1, 1, Q("230 mm")))
sketch1.addConstraint(Sketcher.Constraint("DistanceX", 4, 3, -1, 1, Q("252.5 mm")))
sketch1.addConstraint(Sketcher.Constraint("DistanceY", 4, 3, -1, 1, Q("282.5 mm")))
sketch1.addConstraint(Sketcher.Constraint("DistanceX", 6, 3, -1, 1, Q("207.5 mm")))
sketch1.addConstraint(Sketcher.Constraint("DistanceX", -1, 1, 9, 3, Q("132.5 mm")))
sketch1.addConstraint(Sketcher.Constraint("DistanceX", -1, 1, 7, 3, Q("70.25 mm")))
sketch1.addConstraint(Sketcher.Constraint("DistanceY", 7, 3, -1, 1, Q("62.25 mm")))
sketch1.addConstraint(Sketcher.Constraint("DistanceX", -1, 1, 26, 3, Q("194.75 mm")))
sketch1.addConstraint(Sketcher.Constraint("DistanceY", 8, 1, -1, 1, Q("66.25 mm")))
sketch1.addConstraint(Sketcher.Constraint("DistanceY", 10, 1, -1, 1, Q("56.25 mm")))
sketch1.addConstraint(Sketcher.Constraint("DistanceY", 12, 1, -1, 1, Q("63.75 mm")))
sketch1.addConstraint(Sketcher.Constraint("DistanceY", 14, 1, -1, 1, Q("53.75 mm")))
sketch1.addConstraint(Sketcher.Constraint("DistanceY", 16, 1, -1, 1, Q("46.25 mm")))
sketch1.addConstraint(Sketcher.Constraint("DistanceY", 18, 2, -1, 1, Q("36.25 mm")))
sketch1.addConstraint(Sketcher.Constraint("DistanceY", 19, 1, -1, 1, Q("43.75 mm")))
sketch1.addConstraint(Sketcher.Constraint("DistanceY", 22, 2, -1, 1, Q("26.25 mm")))
sketch1.addConstraint(Sketcher.Constraint("DistanceY", 23, 1, -1, 1, Q("33.75 mm")))
sketch1.addConstraint(Sketcher.Constraint("DistanceY", 28, 2, -1, 1, Q("16.25 mm")))
sketch1.addConstraint(Sketcher.Constraint("DistanceY", 29, 1, -1, 1, Q("23.75 mm")))
sketch1.addConstraint(Sketcher.Constraint("DistanceY", 32, 2, -1, 1, Q("6.25 mm")))
sketch1.addConstraint(Sketcher.Constraint("DistanceY", 33, 1, -1, 1, Q("13.75 mm")))
sketch1.addConstraint(Sketcher.Constraint("DistanceY", 36, 1, -1, 1, Q("3.75 mm")))
pad1 = body.newObject("PartDesign::Pad", "Pad")
pad1.Profile = sketch1
pad1.Length = 3

doc.recompute()
